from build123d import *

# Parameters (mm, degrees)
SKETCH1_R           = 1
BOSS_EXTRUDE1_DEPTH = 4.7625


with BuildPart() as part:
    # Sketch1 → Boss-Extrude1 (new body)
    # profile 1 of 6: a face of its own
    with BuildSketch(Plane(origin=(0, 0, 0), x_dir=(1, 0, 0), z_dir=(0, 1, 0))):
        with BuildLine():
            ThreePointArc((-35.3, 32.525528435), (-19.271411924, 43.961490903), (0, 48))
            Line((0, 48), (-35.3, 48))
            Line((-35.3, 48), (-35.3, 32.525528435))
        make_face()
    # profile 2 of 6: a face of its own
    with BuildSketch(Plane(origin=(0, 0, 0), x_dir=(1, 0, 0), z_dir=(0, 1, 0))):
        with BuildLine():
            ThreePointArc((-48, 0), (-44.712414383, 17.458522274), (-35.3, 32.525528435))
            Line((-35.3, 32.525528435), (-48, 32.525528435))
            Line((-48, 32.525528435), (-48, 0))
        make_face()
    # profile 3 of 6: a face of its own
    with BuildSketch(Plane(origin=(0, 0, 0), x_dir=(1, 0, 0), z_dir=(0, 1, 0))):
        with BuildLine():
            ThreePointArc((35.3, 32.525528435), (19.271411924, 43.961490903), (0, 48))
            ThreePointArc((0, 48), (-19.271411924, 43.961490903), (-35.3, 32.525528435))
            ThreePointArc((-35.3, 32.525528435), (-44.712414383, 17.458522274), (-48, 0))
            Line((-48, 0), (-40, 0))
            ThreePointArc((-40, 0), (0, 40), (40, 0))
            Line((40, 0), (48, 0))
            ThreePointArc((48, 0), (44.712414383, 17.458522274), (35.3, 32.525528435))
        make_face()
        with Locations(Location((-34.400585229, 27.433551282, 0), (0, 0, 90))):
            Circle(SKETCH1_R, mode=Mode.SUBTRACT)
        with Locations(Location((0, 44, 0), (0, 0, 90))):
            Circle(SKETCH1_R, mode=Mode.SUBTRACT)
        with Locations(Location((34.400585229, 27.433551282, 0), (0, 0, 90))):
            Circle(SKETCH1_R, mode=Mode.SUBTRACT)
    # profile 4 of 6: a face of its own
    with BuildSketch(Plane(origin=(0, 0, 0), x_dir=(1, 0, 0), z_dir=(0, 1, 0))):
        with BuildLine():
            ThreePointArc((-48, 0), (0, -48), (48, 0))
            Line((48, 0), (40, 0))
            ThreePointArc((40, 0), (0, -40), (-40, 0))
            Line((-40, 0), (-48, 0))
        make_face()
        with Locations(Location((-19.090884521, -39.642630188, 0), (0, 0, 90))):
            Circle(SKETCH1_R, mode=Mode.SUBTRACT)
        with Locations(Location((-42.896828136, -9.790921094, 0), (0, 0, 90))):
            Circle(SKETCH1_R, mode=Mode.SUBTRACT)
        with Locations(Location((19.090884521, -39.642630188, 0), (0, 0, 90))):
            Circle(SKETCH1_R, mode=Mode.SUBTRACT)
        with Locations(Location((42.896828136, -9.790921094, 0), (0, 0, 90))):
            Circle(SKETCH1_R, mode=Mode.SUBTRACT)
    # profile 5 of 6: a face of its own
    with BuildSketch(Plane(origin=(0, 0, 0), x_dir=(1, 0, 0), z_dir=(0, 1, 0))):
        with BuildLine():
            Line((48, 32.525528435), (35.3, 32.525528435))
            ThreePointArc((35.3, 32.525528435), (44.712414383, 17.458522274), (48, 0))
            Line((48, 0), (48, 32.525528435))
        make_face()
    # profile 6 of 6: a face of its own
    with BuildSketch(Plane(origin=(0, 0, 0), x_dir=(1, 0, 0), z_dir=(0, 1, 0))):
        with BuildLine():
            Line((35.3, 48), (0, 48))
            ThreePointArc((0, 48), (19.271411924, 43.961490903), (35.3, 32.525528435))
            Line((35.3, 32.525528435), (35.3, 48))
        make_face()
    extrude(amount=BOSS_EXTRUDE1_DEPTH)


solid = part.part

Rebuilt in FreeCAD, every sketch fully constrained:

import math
import FreeCAD as App
import Part
import Sketcher

doc = App.newDocument("Part")
body = doc.addObject("PartDesign::Body", "Body")

# Sketch on XZ plane
sketch1 = body.newObject("Sketcher::SketchObject", "Sketch")
sketch1.AttachmentSupport = (doc.getObject("XZ_Plane"), [""])
sketch1.MapMode = "FlatFace"
sketch1.addGeometry([
    Part.LineSegment(App.Vector(-35.3, -48, 0), App.Vector(-35.3, -32.5, 0)),  # 0
    Part.LineSegment(App.Vector(-35.3, -32.5, 0), App.Vector(-48, -32.5, 0)),  # 1
    Part.LineSegment(App.Vector(-48, -32.5, 0), App.Vector(-48, 0, 0)),  # 2
    Part.ArcOfCircle(Part.Circle(App.Vector(0, 0, 0), App.Vector(0, 0, 1), 48), math.radians(0), math.radians(180)),  # 3
    Part.LineSegment(App.Vector(48, 0, 0), App.Vector(48, -32.5, 0)),  # 4
    Part.LineSegment(App.Vector(48, -32.5, 0), App.Vector(35.3, -32.5, 0)),  # 5
    Part.LineSegment(App.Vector(35.3, -32.5, 0), App.Vector(35.3, -48, 0)),  # 6
    Part.LineSegment(App.Vector(35.3, -48, 0), App.Vector(-35.3, -48, 0)),  # 7
    Part.Circle(App.Vector(0, -44, 0), App.Vector(0, 0, 1), 1),  # 8
    Part.Circle(App.Vector(0, 0, 0), App.Vector(0, 0, 1), 40),  # 9
    Part.Circle(App.Vector(-34.4, -27.4, 0), App.Vector(0, 0, 1), 1),  # 10
    Part.Circle(App.Vector(34.4, -27.4, 0), App.Vector(0, 0, 1), 1),  # 11
    Part.Circle(App.Vector(-42.9, 9.8, 0), App.Vector(0, 0, 1), 1),  # 12
    Part.Circle(App.Vector(42.9, 9.8, 0), App.Vector(0, 0, 1), 1),  # 13
    Part.Circle(App.Vector(-19.1, 39.6, 0), App.Vector(0, 0, 1), 1),  # 14
    Part.Circle(App.Vector(19.1, 39.6, 0), App.Vector(0, 0, 1), 1),  # 15
], False)
sketch1.addConstraint([
    Sketcher.Constraint("Coincident", 0, 2, 1, 1),
    Sketcher.Constraint("Coincident", 1, 2, 2, 1),
    Sketcher.Constraint("Tangent", 2, 2, 3, 2),
    Sketcher.Constraint("Tangent", 3, 1, 4, 1),
    Sketcher.Constraint("Coincident", 4, 2, 5, 1),
    Sketcher.Constraint("Coincident", 5, 2, 6, 1),
    Sketcher.Constraint("Coincident", 6, 2, 7, 1),
    Sketcher.Constraint("Coincident", 7, 2, 0, 1),
    Sketcher.Constraint("Vertical", 0),
    Sketcher.Constraint("Horizontal", 1),
    Sketcher.Constraint("Vertical", 2),
    Sketcher.Constraint("Vertical", 4),
    Sketcher.Constraint("Horizontal", 5),
    Sketcher.Constraint("Vertical", 6),
    Sketcher.Constraint("Horizontal", 7),
    Sketcher.Constraint("Coincident", 3, 3, -1, 1),
    Sketcher.Constraint("Coincident", 9, 3, -1, 1),
    Sketcher.Constraint("Equal", 8, 10),
    Sketcher.Constraint("Equal", 10, 11),
    Sketcher.Constraint("Equal", 11, 12),
    Sketcher.Constraint("Equal", 12, 13),
    Sketcher.Constraint("Equal", 13, 14),
    Sketcher.Constraint("Equal", 14, 15),
    Sketcher.Constraint("Symmetric", 10, 3, 11, 3, -2),
    Sketcher.Constraint("Symmetric", 12, 3, 13, 3, -2),
    Sketcher.Constraint("Symmetric", 14, 3, 15, 3, -2),
    Sketcher.Constraint("Symmetric", 0, 2, 5, 2, -2),
    Sketcher.Constraint("PointOnObject", 8, 3, -2),
    Sketcher.Constraint("Diameter", 8, 2.0),
    Sketcher.Constraint("Diameter", 9, 80.0),
    Sketcher.Constraint("Radius", 3, 48.0),
    Sketcher.Constraint("DistanceX", 1, 2, 1, 1, 12.7),
    Sketcher.Constraint("DistanceY", 8, 3, -1, 1, 44.0),
    Sketcher.Constraint("DistanceY", 6, 2, -1, 1, 48.0),
    Sketcher.Constraint("DistanceY", 0, 1, 0, 2, 15.474472),
    Sketcher.Constraint("DistanceX", 10, 3, 14, 3, 15.309701),
    Sketcher.Constraint("DistanceY", 10, 3, -1, 1, 27.433551),
    Sketcher.Constraint("DistanceX", 12, 3, -1, 1, 42.896828),
    Sketcher.Constraint("DistanceY", -1, 1, 12, 3, 9.790921),
    Sketcher.Constraint("DistanceY", -1, 1, 14, 3, 39.64263),
    Sketcher.Constraint("DistanceX", 10, 3, 11, 3, 68.80117),
])
pad1 = body.newObject("PartDesign::Pad", "Pad")
pad1.Profile = sketch1
pad1.Length = 4.7625
pad1.Reversed = True

doc.recompute()
